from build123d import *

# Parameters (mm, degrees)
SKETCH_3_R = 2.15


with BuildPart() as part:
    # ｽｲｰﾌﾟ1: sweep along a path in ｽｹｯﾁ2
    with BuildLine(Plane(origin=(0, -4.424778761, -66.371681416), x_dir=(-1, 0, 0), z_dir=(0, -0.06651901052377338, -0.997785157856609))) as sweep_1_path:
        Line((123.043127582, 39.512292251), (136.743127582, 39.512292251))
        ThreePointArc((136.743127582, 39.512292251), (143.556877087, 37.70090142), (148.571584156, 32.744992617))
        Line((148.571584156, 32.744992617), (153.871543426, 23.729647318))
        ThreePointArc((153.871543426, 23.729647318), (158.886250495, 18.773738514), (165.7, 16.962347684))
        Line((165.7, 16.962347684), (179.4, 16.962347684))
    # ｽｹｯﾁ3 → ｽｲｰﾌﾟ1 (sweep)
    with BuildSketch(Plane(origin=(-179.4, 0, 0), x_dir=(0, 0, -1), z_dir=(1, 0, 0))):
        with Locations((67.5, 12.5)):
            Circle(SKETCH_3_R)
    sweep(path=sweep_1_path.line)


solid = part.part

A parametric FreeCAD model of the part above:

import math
import FreeCAD as App
import Part
import Sketcher

V = App.Vector
Q = App.Units.Quantity

doc = App.newDocument("Part")
params = doc.addObject("Spreadsheet::Sheet", "Params")
for row, (alias, value) in enumerate([
    ("sketch1_diameter", "4.3 mm"),
    ("sketch2_height", "13.7 mm"),
], start=1):
    params.set(f"A{row}", alias)
    params.set(f"B{row}", "=" + value)
    params.setAlias(f"B{row}", alias)

body = doc.addObject("PartDesign::Body", "Body")

sketch1 = doc.addObject("Sketcher::SketchObject", "Sketch")
body.addObject(sketch1)
sketch1.AttachmentSupport = (doc.YZ_Plane, [""])
sketch1.MapMode = "FlatFace"
sketch1.AttachmentOffset = App.Placement(V(0, 0, -179.4), App.Rotation())
sketch1.addGeometry(Part.Circle(V(12.5, -67.5, 0), V(0, 0, 1), 2.1), False)
sketch1.addConstraint([
    Sketcher.Constraint("Diameter", 0, Q("4.3 mm")),
    Sketcher.Constraint("DistanceX", -1, 1, 0, 3, Q("12.5 mm")),
    Sketcher.Constraint("DistanceY", 0, 3, -1, 1, Q("67.5 mm")),
])
sketch1.setExpression("Constraints[0]", "Params.sketch1_diameter")

sketch2 = doc.addObject("Sketcher::SketchObject", "Sketch001")
body.addObject(sketch2)
sketch2.Placement = App.Placement(V(0, -4.424779, -66.371681), App.Rotation(V(0, -0.997785158, 0.066519011), V(1, 0, 0), V(0, 0.066519011, 0.997785158), "ZXY"))
sketch2.addGeometry([
    Part.LineSegment(V(-40, -123, 0), V(-40, -137, 0)),
    Part.ArcOfCircle(Part.Circle(V(-26, -137, 0), V(0, 0, 1), 14), math.radians(-180), math.radians(-120)),
    Part.LineSegment(V(-33, -149, 0), V(-24, -154, 0)),
    Part.ArcOfCircle(Part.Circle(V(-31, -166, 0), V(0, 0, 1), 14), math.radians(0), math.radians(60)),
    Part.LineSegment(V(-17, -166, 0), V(-17, -179, 0)),
], False)
sketch2.addConstraint([
    Sketcher.Constraint("Tangent", 0, 2, 1, 1),
    Sketcher.Constraint("Tangent", 1, 2, 2, 1),
    Sketcher.Constraint("Tangent", 2, 2, 3, 2),
    Sketcher.Constraint("Tangent", 3, 1, 4, 1),
    Sketcher.Constraint("Vertical", 0),
    Sketcher.Constraint("Vertical", 4),
    Sketcher.Constraint("Equal", 1, 3),
    Sketcher.Constraint("Equal", 0, 4),
    Sketcher.Constraint("DistanceY", 0, 2, 0, 1, Q("13.7 mm")),
    Sketcher.Constraint("DistanceY", 3, 3, -1, 1, Q("165.7 mm")),
    Sketcher.Constraint("Radius", 1, Q("13.721036 mm")),
    Sketcher.Constraint("DistanceX", 0, 2, 1, 2, Q("6.7673 mm")),
    Sketcher.Constraint("Distance", 2, Q("10.457821 mm")),
    Sketcher.Constraint("DistanceX", 1, 3, -1, 1, Q("25.791256 mm")),
])
sketch2.setExpression("Constraints[8]", "Params.sketch2_height")
doc.recompute()

additivepipe = doc.addObject("PartDesign::AdditivePipe", "AdditivePipe")
body.addObject(additivepipe)
additivepipe.Profile = sketch1
additivepipe.Spine = (sketch2, ["Edge1", "Edge2", "Edge3", "Edge4", "Edge5"])

doc.recompute()
